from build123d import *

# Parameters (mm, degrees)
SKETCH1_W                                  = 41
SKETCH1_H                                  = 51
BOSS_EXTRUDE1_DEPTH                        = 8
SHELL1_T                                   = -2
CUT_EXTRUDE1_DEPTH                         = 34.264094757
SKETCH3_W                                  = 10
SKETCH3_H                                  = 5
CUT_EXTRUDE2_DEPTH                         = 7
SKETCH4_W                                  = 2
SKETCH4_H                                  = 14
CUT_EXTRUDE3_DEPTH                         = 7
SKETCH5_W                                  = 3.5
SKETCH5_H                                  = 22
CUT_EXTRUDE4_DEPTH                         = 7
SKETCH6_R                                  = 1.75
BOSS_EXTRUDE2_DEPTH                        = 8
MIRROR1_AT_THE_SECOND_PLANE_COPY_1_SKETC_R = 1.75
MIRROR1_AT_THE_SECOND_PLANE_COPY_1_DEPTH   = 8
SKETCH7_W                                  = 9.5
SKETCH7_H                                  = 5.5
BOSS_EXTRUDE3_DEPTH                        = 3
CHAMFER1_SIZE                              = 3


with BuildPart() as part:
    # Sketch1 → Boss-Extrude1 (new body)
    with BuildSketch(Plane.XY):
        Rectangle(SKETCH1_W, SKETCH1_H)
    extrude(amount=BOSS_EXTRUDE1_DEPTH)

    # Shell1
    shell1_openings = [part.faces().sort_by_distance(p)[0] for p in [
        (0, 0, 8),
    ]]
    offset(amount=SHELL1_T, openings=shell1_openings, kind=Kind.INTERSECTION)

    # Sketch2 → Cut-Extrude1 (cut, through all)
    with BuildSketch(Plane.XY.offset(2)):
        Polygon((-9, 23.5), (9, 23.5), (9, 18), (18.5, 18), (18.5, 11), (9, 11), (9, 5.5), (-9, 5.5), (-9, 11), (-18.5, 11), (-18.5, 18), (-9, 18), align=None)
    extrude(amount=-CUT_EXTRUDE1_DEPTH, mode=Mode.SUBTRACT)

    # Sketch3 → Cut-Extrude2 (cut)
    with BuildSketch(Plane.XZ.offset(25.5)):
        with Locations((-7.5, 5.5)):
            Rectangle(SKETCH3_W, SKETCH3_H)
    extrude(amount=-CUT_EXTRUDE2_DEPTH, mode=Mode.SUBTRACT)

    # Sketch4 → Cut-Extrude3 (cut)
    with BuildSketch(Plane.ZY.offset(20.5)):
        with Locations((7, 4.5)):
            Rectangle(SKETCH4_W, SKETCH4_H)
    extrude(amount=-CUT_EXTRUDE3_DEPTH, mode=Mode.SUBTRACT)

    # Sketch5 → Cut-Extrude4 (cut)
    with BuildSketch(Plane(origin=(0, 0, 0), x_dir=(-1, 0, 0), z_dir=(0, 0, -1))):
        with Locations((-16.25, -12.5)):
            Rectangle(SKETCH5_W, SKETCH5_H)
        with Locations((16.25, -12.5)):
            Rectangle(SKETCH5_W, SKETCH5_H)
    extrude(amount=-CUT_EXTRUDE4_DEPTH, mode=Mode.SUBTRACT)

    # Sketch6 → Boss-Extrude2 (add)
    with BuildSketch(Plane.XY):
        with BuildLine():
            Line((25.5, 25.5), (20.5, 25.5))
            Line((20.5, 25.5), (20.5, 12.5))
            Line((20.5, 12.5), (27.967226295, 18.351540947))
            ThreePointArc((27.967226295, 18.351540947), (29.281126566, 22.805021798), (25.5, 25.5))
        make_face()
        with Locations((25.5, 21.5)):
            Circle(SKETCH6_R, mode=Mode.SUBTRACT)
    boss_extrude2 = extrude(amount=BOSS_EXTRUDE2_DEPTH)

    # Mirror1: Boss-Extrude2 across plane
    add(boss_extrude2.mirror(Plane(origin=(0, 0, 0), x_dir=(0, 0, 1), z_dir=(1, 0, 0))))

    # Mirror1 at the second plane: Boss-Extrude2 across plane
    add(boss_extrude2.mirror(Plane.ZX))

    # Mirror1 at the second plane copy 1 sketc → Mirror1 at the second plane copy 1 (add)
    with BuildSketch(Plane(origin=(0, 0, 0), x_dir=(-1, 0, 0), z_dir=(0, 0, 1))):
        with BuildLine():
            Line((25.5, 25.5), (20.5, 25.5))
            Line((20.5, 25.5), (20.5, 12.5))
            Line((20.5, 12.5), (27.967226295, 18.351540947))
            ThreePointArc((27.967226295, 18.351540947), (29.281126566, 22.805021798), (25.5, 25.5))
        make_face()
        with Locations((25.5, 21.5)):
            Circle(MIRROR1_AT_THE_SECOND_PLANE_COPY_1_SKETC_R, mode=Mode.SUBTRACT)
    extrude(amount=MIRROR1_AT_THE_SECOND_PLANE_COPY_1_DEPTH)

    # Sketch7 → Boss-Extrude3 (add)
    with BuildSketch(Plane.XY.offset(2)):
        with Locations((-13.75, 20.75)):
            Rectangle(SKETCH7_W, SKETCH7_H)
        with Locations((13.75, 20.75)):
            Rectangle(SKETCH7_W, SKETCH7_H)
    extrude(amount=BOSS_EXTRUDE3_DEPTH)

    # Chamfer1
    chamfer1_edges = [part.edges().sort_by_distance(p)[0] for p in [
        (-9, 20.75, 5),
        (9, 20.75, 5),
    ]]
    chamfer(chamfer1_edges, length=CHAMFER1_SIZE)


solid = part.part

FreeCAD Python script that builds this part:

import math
import FreeCAD as App
import Part
import Sketcher
from FreeCAD import Vector


def edges_at(feature, points):
    """Names of the edges that pass closest to the given points."""
    edges = feature.Shape.Edges
    near = lambda p: min(range(len(edges)), key=lambda i: edges[i].distToShape(Part.Vertex(*p))[0])
    return sorted({f"Edge{near(p) + 1}" for p in points})


def faces_at(feature, points):
    """Names of the faces that lie closest to the given points."""
    faces = feature.Shape.Faces
    near = lambda p: min(range(len(faces)), key=lambda i: faces[i].distToShape(Part.Vertex(*p))[0])
    return sorted({f"Face{near(p) + 1}" for p in points})

doc = App.newDocument("Part")
body = doc.addObject("PartDesign::Body", "Body")

# Sketch on XY plane
sketch1 = body.newObject("Sketcher::SketchObject", "Sketch")
sketch1.AttachmentSupport = (doc.getObject("XY_Plane"), [""])
sketch1.MapMode = "FlatFace"
sketch1.addGeometry([
    Part.LineSegment(Vector(-20, 26, 0), Vector(-20, -26, 0)),
    Part.LineSegment(Vector(-20, -26, 0), Vector(20, -26, 0)),
    Part.LineSegment(Vector(20, -26, 0), Vector(20, 26, 0)),
    Part.LineSegment(Vector(20, 26, 0), Vector(-20, 26, 0)),
], False)
sketch1.addConstraint([
    Sketcher.Constraint("Coincident", 0, 2, 1, 1),
    Sketcher.Constraint("Coincident", 1, 2, 2, 1),
    Sketcher.Constraint("Coincident", 2, 2, 3, 1),
    Sketcher.Constraint("Coincident", 3, 2, 0, 1),
    Sketcher.Constraint("Vertical", 0),
    Sketcher.Constraint("Horizontal", 1),
    Sketcher.Constraint("Vertical", 2),
    Sketcher.Constraint("Horizontal", 3),
    Sketcher.Constraint("Symmetric", 0, 2, 2, 2, -1, 1),
    Sketcher.Constraint("DistanceX", 1, 1, 1, 2, 41.0),
    Sketcher.Constraint("DistanceY", 0, 2, 0, 1, 51.0),
])
pad1 = body.newObject("PartDesign::Pad", "Pad")
pad1.Profile = sketch1
pad1.Length = 8
doc.recompute()

thickness = body.newObject("PartDesign::Thickness", "Thickness")
thickness.Base = (pad1, faces_at(pad1, [(0, 0, 8)]))
thickness.Value = 2
thickness.Reversed = True
thickness.Join = "Intersection"

# Sketch on XY plane
sketch2 = body.newObject("Sketcher::SketchObject", "Sketch001")
sketch2.AttachmentSupport = (doc.getObject("XY_Plane"), [""])
sketch2.MapMode = "FlatFace"
sketch2.AttachmentOffset = App.Placement(Vector(0, 0, 2), App.Rotation())
sketch2.addGeometry([
    Part.LineSegment(Vector(9, 24, 0), Vector(-9, 24, 0)),  # 0
    Part.LineSegment(Vector(-9, 24, 0), Vector(-9, 18, 0)),  # 1
    Part.LineSegment(Vector(-9, 18, 0), Vector(-18, 18, 0)),  # 2
    Part.LineSegment(Vector(-18, 18, 0), Vector(-18, 11, 0)),  # 3
    Part.LineSegment(Vector(-18, 11, 0), Vector(-9, 11, 0)),  # 4
    Part.LineSegment(Vector(-9, 11, 0), Vector(-9, 6, 0)),  # 5
    Part.LineSegment(Vector(-9, 6, 0), Vector(9, 6, 0)),  # 6
    Part.LineSegment(Vector(9, 6, 0), Vector(9, 11, 0)),  # 7
    Part.LineSegment(Vector(9, 11, 0), Vector(18, 11, 0)),  # 8
    Part.LineSegment(Vector(18, 11, 0), Vector(18, 18, 0)),  # 9
    Part.LineSegment(Vector(18, 18, 0), Vector(9, 18, 0)),  # 10
    Part.LineSegment(Vector(9, 18, 0), Vector(9, 24, 0)),  # 11
], False)
sketch2.addConstraint([
    Sketcher.Constraint("Coincident", 0, 2, 1, 1),
    Sketcher.Constraint("Coincident", 1, 2, 2, 1),
    Sketcher.Constraint("Coincident", 2, 2, 3, 1),
    Sketcher.Constraint("Coincident", 3, 2, 4, 1),
    Sketcher.Constraint("Coincident", 4, 2, 5, 1),
    Sketcher.Constraint("Coincident", 5, 2, 6, 1),
    Sketcher.Constraint("Coincident", 6, 2, 7, 1),
    Sketcher.Constraint("Coincident", 7, 2, 8, 1),
    Sketcher.Constraint("Coincident", 8, 2, 9, 1),
    Sketcher.Constraint("Coincident", 9, 2, 10, 1),
    Sketcher.Constraint("Coincident", 10, 2, 11, 1),
    Sketcher.Constraint("Coincident", 11, 2, 0, 1),
    Sketcher.Constraint("Horizontal", 0),
    Sketcher.Constraint("Vertical", 1),
    Sketcher.Constraint("Horizontal", 2),
    Sketcher.Constraint("Vertical", 3),
    Sketcher.Constraint("Horizontal", 4),
    Sketcher.Constraint("Vertical", 5),
    Sketcher.Constraint("Horizontal", 6),
    Sketcher.Constraint("Vertical", 7),
    Sketcher.Constraint("Horizontal", 8),
    Sketcher.Constraint("Vertical", 9),
    Sketcher.Constraint("Horizontal", 10),
    Sketcher.Constraint("Vertical", 11),
    Sketcher.Constraint("Symmetric", 4, 2, 7, 2, -2),
    Sketcher.Constraint("Symmetric", 2, 2, 9, 2, -2),
    Sketcher.Constraint("Vertical", 1, 2, 4, 2),
    Sketcher.Constraint("Vertical", 7, 2, 10, 2),
    Sketcher.Constraint("Equal", 1, 5),
    Sketcher.Constraint("DistanceX", 0, 2, 0, 1, 18.0),
    Sketcher.Constraint("DistanceY", 3, 2, 3, 1, 7.0),
    Sketcher.Constraint("DistanceX", 2, 2, 2, 1, 9.5),
    Sketcher.Constraint("DistanceY", 1, 2, 1, 1, 5.5),
    Sketcher.Constraint("DistanceY", -1, 1, 1, 2, 18.0),
])
pocket1 = body.newObject("PartDesign::Pocket", "Pocket")
pocket1.Profile = sketch2
pocket1.Type = "ThroughAll"

# Sketch on XZ plane
sketch3 = body.newObject("Sketcher::SketchObject", "Sketch002")
sketch3.AttachmentSupport = (doc.getObject("XZ_Plane"), [""])
sketch3.MapMode = "FlatFace"
sketch3.AttachmentOffset = App.Placement(Vector(0, 0, 25.5), App.Rotation())
sketch3.addGeometry([
    Part.LineSegment(Vector(-12, 8, 0), Vector(-12, 3, 0)),
    Part.LineSegment(Vector(-12, 3, 0), Vector(-2, 3, 0)),
    Part.LineSegment(Vector(-2, 3, 0), Vector(-2, 8, 0)),
    Part.LineSegment(Vector(-2, 8, 0), Vector(-12, 8, 0)),
], False)
sketch3.addConstraint([
    Sketcher.Constraint("Coincident", 0, 2, 1, 1),
    Sketcher.Constraint("Coincident", 1, 2, 2, 1),
    Sketcher.Constraint("Coincident", 2, 2, 3, 1),
    Sketcher.Constraint("Coincident", 3, 2, 0, 1),
    Sketcher.Constraint("Vertical", 0),
    Sketcher.Constraint("Horizontal", 1),
    Sketcher.Constraint("Vertical", 2),
    Sketcher.Constraint("Horizontal", 3),
    Sketcher.Constraint("DistanceX", 1, 1, 1, 2, 10.0),
    Sketcher.Constraint("DistanceY", 0, 2, 0, 1, 5.0),
    Sketcher.Constraint("DistanceY", -1, 1, 0, 2, 3.0),
    Sketcher.Constraint("DistanceX", 0, 2, -1, 1, 12.5),
])
pocket2 = body.newObject("PartDesign::Pocket", "Pocket001")
pocket2.Profile = sketch3
pocket2.Length = 7

# Sketch on YZ plane
sketch4 = body.newObject("Sketcher::SketchObject", "Sketch003")
sketch4.AttachmentSupport = (doc.getObject("YZ_Plane"), [""])
sketch4.MapMode = "FlatFace"
sketch4.AttachmentOffset = App.Placement(Vector(0, 0, -20.5), App.Rotation())
sketch4.addGeometry([
    Part.LineSegment(Vector(11.5, 6, 0), Vector(-2.5, 6, 0)),
    Part.LineSegment(Vector(-2.5, 6, 0), Vector(-2.5, 8, 0)),
    Part.LineSegment(Vector(-2.5, 8, 0), Vector(11.5, 8, 0)),
    Part.LineSegment(Vector(11.5, 8, 0), Vector(11.5, 6, 0)),
], False)
sketch4.addConstraint([
    Sketcher.Constraint("Coincident", 0, 2, 1, 1),
    Sketcher.Constraint("Coincident", 1, 2, 2, 1),
    Sketcher.Constraint("Coincident", 2, 2, 3, 1),
    Sketcher.Constraint("Coincident", 3, 2, 0, 1),
    Sketcher.Constraint("Horizontal", 0),
    Sketcher.Constraint("Vertical", 1),
    Sketcher.Constraint("Horizontal", 2),
    Sketcher.Constraint("Vertical", 3),
    Sketcher.Constraint("DistanceX", 0, 2, 0, 1, 14.0),
    Sketcher.Constraint("DistanceY", 1, 1, 1, 2, 2.0),
    Sketcher.Constraint("DistanceY", -1, 1, 0, 2, 6.0),
    Sketcher.Constraint("DistanceX", 0, 2, -1, 1, 2.5),
])
pocket3 = body.newObject("PartDesign::Pocket", "Pocket002")
pocket3.Profile = sketch4
pocket3.Length = 7
pocket3.Reversed = True

# Sketch on XY plane
sketch5 = body.newObject("Sketcher::SketchObject", "Sketch004")
sketch5.AttachmentSupport = (doc.getObject("XY_Plane"), [""])
sketch5.MapMode = "FlatFace"
sketch5.addGeometry([
    Part.LineSegment(Vector(18, -1.5, 0), Vector(18, -23.5, 0)),  # 0
    Part.LineSegment(Vector(18, -23.5, 0), Vector(14.5, -23.5, 0)),  # 1
    Part.LineSegment(Vector(14.5, -23.5, 0), Vector(14.5, -1.5, 0)),  # 2
    Part.LineSegment(Vector(14.5, -1.5, 0), Vector(18, -1.5, 0)),  # 3
    Part.LineSegment(Vector(-14.5, -1.5, 0), Vector(-14.5, -23.5, 0)),  # 4
    Part.LineSegment(Vector(-14.5, -23.5, 0), Vector(-18, -23.5, 0)),  # 5
    Part.LineSegment(Vector(-18, -23.5, 0), Vector(-18, -1.5, 0)),  # 6
    Part.LineSegment(Vector(-18, -1.5, 0), Vector(-14.5, -1.5, 0)),  # 7
], False)
sketch5.addConstraint([
    Sketcher.Constraint("Coincident", 0, 2, 1, 1),
    Sketcher.Constraint("Coincident", 1, 2, 2, 1),
    Sketcher.Constraint("Coincident", 2, 2, 3, 1),
    Sketcher.Constraint("Coincident", 3, 2, 0, 1),
    Sketcher.Constraint("Coincident", 4, 2, 5, 1),
    Sketcher.Constraint("Coincident", 5, 2, 6, 1),
    Sketcher.Constraint("Coincident", 6, 2, 7, 1),
    Sketcher.Constraint("Coincident", 7, 2, 4, 1),
    Sketcher.Constraint("Vertical", 0),
    Sketcher.Constraint("Horizontal", 1),
    Sketcher.Constraint("Vertical", 2),
    Sketcher.Constraint("Horizontal", 3),
    Sketcher.Constraint("Vertical", 4),
    Sketcher.Constraint("Horizontal", 5),
    Sketcher.Constraint("Vertical", 6),
    Sketcher.Constraint("Horizontal", 7),
    Sketcher.Constraint("Symmetric", 1, 2, 4, 2, -2),
    Sketcher.Constraint("Symmetric", 3, 2, 6, 2, -2),
    Sketcher.Constraint("DistanceY", 0, 2, 0, 1, 22.0),
    Sketcher.Constraint("DistanceX", 1, 2, 1, 1, 3.5),
    Sketcher.Constraint("DistanceX", -1, 1, 0, 2, 18.0),
    Sketcher.Constraint("DistanceY", 0, 2, -1, 1, 23.5),
])
pocket4 = body.newObject("PartDesign::Pocket", "Pocket003")
pocket4.Profile = sketch5
pocket4.Length = 7
pocket4.Reversed = True

# Sketch on XY plane
sketch6 = body.newObject("Sketcher::SketchObject", "Sketch005")
sketch6.AttachmentSupport = (doc.getObject("XY_Plane"), [""])
sketch6.MapMode = "FlatFace"
sketch6.addGeometry([
    Part.LineSegment(Vector(25.5, 25.5, 0), Vector(20.5, 25.5, 0)),  # 0
    Part.LineSegment(Vector(20.5, 25.5, 0), Vector(20.5, 12.5, 0)),  # 1
    Part.LineSegment(Vector(20.5, 12.5, 0), Vector(28, 18.4, 0)),  # 2
    Part.ArcOfCircle(Part.Circle(Vector(25.5, 21.5, 0), Vector(0, 0, 1), 4), math.radians(-52), math.radians(90)),  # 3
    Part.Circle(Vector(25.5, 21.5, 0), Vector(0, 0, 1), 1.8),  # 4
], False)
sketch6.addConstraint([
    Sketcher.Constraint("Coincident", 0, 2, 1, 1),
    Sketcher.Constraint("Coincident", 1, 2, 2, 1),
    Sketcher.Constraint("Tangent", 2, 2, 3, 1),
    Sketcher.Constraint("Tangent", 3, 2, 0, 1),
    Sketcher.Constraint("Horizontal", 0),
    Sketcher.Constraint("Vertical", 1),
    Sketcher.Constraint("Coincident", 4, 3, 3, 3),
    Sketcher.Constraint("Radius", 3, 4.0),
    Sketcher.Constraint("Diameter", 4, 3.5),
    Sketcher.Constraint("DistanceX", 0, 2, 0, 1, 5.0),
    Sketcher.Constraint("DistanceY", 1, 2, 1, 1, 13.0),
    Sketcher.Constraint("DistanceX", -1, 1, 3, 3, 25.5),
    Sketcher.Constraint("DistanceY", -1, 1, 3, 3, 21.5),
])
pad2 = body.newObject("PartDesign::Pad", "Pad001")
pad2.Profile = sketch6
pad2.Length = 8
doc.recompute()

mirrored = body.newObject("PartDesign::Mirrored", "Mirrored")
mirrored.Originals = [pad2]
mirrored.MirrorPlane = (doc.getObject("YZ_Plane"), [""])
body.Tip = mirrored
doc.recompute()

mirrored2 = body.newObject("PartDesign::Mirrored", "Mirrored001")
mirrored2.Originals = [pad2]
mirrored2.MirrorPlane = (doc.getObject("XZ_Plane"), [""])
body.Tip = mirrored2

# Sketch on XY plane
sketch7 = body.newObject("Sketcher::SketchObject", "Sketch006")
sketch7.AttachmentSupport = (doc.getObject("XY_Plane"), [""])
sketch7.MapMode = "FlatFace"
sketch7.addGeometry([
    Part.LineSegment(Vector(-25.5, -25.5, 0), Vector(-20.5, -25.5, 0)),  # 0
    Part.LineSegment(Vector(-20.5, -25.5, 0), Vector(-20.5, -12.5, 0)),  # 1
    Part.LineSegment(Vector(-20.5, -12.5, 0), Vector(-28, -18.4, 0)),  # 2
    Part.ArcOfCircle(Part.Circle(Vector(-25.5, -21.5, 0), Vector(0, 0, 1), 4), math.radians(128), math.radians(270)),  # 3
    Part.Circle(Vector(-25.5, -21.5, 0), Vector(0, 0, 1), 1.8),  # 4
], False)
sketch7.addConstraint([
    Sketcher.Constraint("Coincident", 0, 2, 1, 1),
    Sketcher.Constraint("Coincident", 1, 2, 2, 1),
    Sketcher.Constraint("Tangent", 2, 2, 3, 1),
    Sketcher.Constraint("Tangent", 3, 2, 0, 1),
    Sketcher.Constraint("Horizontal", 0),
    Sketcher.Constraint("Vertical", 1),
    Sketcher.Constraint("Coincident", 4, 3, 3, 3),
    Sketcher.Constraint("Radius", 3, 4.0),
    Sketcher.Constraint("Diameter", 4, 3.5),
    Sketcher.Constraint("DistanceX", 0, 1, 0, 2, 5.0),
    Sketcher.Constraint("DistanceY", 1, 1, 1, 2, 13.0),
    Sketcher.Constraint("DistanceX", 3, 3, -1, 1, 25.5),
    Sketcher.Constraint("DistanceY", 3, 3, -1, 1, 21.5),
])
pad3 = body.newObject("PartDesign::Pad", "Pad002")
pad3.Profile = sketch7
pad3.Length = 8

# Sketch on XY plane
sketch8 = body.newObject("Sketcher::SketchObject", "Sketch007")
sketch8.AttachmentSupport = (doc.getObject("XY_Plane"), [""])
sketch8.MapMode = "FlatFace"
sketch8.AttachmentOffset = App.Placement(Vector(0, 0, 2), App.Rotation())
sketch8.addGeometry([
    Part.LineSegment(Vector(-18, 24, 0), Vector(-18, 18, 0)),  # 0
    Part.LineSegment(Vector(-18, 18, 0), Vector(-9, 18, 0)),  # 1
    Part.LineSegment(Vector(-9, 18, 0), Vector(-9, 24, 0)),  # 2
    Part.LineSegment(Vector(-9, 24, 0), Vector(-18, 24, 0)),  # 3
    Part.LineSegment(Vector(9, 24, 0), Vector(9, 18, 0)),  # 4
    Part.LineSegment(Vector(9, 18, 0), Vector(18, 18, 0)),  # 5
    Part.LineSegment(Vector(18, 18, 0), Vector(18, 24, 0)),  # 6
    Part.LineSegment(Vector(18, 24, 0), Vector(9, 24, 0)),  # 7
], False)
sketch8.addConstraint([
    Sketcher.Constraint("Coincident", 0, 2, 1, 1),
    Sketcher.Constraint("Coincident", 1, 2, 2, 1),
    Sketcher.Constraint("Coincident", 2, 2, 3, 1),
    Sketcher.Constraint("Coincident", 3, 2, 0, 1),
    Sketcher.Constraint("Coincident", 4, 2, 5, 1),
    Sketcher.Constraint("Coincident", 5, 2, 6, 1),
    Sketcher.Constraint("Coincident", 6, 2, 7, 1),
    Sketcher.Constraint("Coincident", 7, 2, 4, 1),
    Sketcher.Constraint("Vertical", 0),
    Sketcher.Constraint("Horizontal", 1),
    Sketcher.Constraint("Vertical", 2),
    Sketcher.Constraint("Horizontal", 3),
    Sketcher.Constraint("Vertical", 4),
    Sketcher.Constraint("Horizontal", 5),
    Sketcher.Constraint("Vertical", 6),
    Sketcher.Constraint("Horizontal", 7),
    Sketcher.Constraint("Symmetric", 1, 2, 4, 2, -2),
    Sketcher.Constraint("Symmetric", 3, 2, 6, 2, -2),
    Sketcher.Constraint("DistanceX", 1, 1, 1, 2, 9.5),
    Sketcher.Constraint("DistanceY", 0, 2, 0, 1, 5.5),
    Sketcher.Constraint("DistanceY", -1, 1, 0, 2, 18.0),
    Sketcher.Constraint("DistanceX", 1, 2, -1, 1, 9.0),
])
pad4 = body.newObject("PartDesign::Pad", "Pad003")
pad4.Profile = sketch8
pad4.Length = 3
doc.recompute()

chamfer = body.newObject("PartDesign::Chamfer", "Chamfer")
chamfer.Base = (pad4, edges_at(pad4, [(-9, 20.75, 5), (9, 20.75, 5)]))
chamfer.Size = 3

doc.recompute()
